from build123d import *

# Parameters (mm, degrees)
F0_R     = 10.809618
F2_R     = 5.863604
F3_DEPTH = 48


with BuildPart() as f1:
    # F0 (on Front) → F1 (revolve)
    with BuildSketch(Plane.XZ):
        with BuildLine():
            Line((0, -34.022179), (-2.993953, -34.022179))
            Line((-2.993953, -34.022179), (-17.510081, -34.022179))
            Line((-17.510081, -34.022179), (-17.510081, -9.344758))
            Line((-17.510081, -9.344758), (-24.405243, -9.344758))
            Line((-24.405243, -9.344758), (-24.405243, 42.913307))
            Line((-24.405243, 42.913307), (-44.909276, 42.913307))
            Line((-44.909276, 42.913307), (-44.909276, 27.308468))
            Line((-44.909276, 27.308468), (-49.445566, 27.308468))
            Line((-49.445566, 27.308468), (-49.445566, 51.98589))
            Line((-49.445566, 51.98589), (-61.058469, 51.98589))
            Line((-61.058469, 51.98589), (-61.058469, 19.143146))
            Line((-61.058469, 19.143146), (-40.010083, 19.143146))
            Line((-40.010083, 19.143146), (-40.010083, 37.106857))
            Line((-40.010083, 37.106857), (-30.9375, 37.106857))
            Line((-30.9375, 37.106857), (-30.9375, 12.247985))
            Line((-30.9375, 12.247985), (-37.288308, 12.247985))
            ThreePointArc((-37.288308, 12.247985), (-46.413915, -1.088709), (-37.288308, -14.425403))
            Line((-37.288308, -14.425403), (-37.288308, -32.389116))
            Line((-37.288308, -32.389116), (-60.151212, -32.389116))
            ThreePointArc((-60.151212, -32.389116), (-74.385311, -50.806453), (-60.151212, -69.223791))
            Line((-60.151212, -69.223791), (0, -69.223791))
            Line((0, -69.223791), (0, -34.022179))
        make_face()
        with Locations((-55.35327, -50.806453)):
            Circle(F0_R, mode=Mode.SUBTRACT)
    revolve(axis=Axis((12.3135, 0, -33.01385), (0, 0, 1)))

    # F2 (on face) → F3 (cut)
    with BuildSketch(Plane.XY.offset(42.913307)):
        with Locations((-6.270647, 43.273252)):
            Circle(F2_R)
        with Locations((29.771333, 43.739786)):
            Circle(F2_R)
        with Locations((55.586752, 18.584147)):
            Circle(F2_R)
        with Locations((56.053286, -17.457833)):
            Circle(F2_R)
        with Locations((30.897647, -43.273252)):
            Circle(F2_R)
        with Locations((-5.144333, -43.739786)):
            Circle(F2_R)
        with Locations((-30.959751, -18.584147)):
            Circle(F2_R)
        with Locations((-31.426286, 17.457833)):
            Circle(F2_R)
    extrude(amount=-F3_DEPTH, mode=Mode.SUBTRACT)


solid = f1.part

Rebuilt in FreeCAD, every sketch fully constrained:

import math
import FreeCAD as App
import Part
import Sketcher
from FreeCAD import Vector
Q = App.Units.Quantity

doc = App.newDocument("Part")
body = doc.addObject("PartDesign::Body", "Body")

# Sketch on XZ plane
sketch1 = body.newObject("Sketcher::SketchObject", "Sketch")
sketch1.AttachmentSupport = (doc.getObject("XZ_Plane"), [""])
sketch1.MapMode = "FlatFace"
sketch1.addGeometry(Part.LineSegment(Vector(0, -34, 0), Vector(-17.5, -34, 0)), False)
sketch1.addGeometry(Part.LineSegment(Vector(-17.5, -34, 0), Vector(-17.5, -9.3, 0)), False)
sketch1.addGeometry(Part.LineSegment(Vector(-17.5, -9.3, 0), Vector(-24.4, -9.3, 0)), False)
sketch1.addGeometry(Part.LineSegment(Vector(-24.4, -9.3, 0), Vector(-24.4, 42.9, 0)), False)
sketch1.addGeometry(Part.LineSegment(Vector(-24.4, 42.9, 0), Vector(-44.9, 42.9, 0)), False)
sketch1.addGeometry(Part.LineSegment(Vector(-44.9, 42.9, 0), Vector(-44.9, 27.3, 0)), False)
sketch1.addGeometry(Part.LineSegment(Vector(-44.9, 27.3, 0), Vector(-49.4, 27.3, 0)), False)
sketch1.addGeometry(Part.LineSegment(Vector(-49.4, 27.3, 0), Vector(-49.4, 52, 0)), False)
sketch1.addGeometry(Part.LineSegment(Vector(-49.4, 52, 0), Vector(-61.1, 52, 0)), False)
sketch1.addGeometry(Part.LineSegment(Vector(-61.1, 52, 0), Vector(-61.1, 19.1, 0)), False)
sketch1.addGeometry(Part.LineSegment(Vector(-61.1, 19.1, 0), Vector(-40, 19.1, 0)), False)
sketch1.addGeometry(Part.LineSegment(Vector(-40, 19.1, 0), Vector(-40, 37.1, 0)), False)
sketch1.addGeometry(Part.LineSegment(Vector(-40, 37.1, 0), Vector(-30.9, 37.1, 0)), False)
sketch1.addGeometry(Part.LineSegment(Vector(-30.9, 37.1, 0), Vector(-30.9, 12.2, 0)), False)
sketch1.addGeometry(Part.LineSegment(Vector(-30.9, 12.2, 0), Vector(-37.3, 12.2, 0)), False)
sketch1.addGeometry(Part.ArcOfCircle(Part.Circle(Vector(-32.1, -1.1, 0), Vector(0, 0, 1), 14.3), math.radians(111), math.radians(249)), False)
sketch1.addGeometry(Part.LineSegment(Vector(-37.3, -14.4, 0), Vector(-37.3, -32.4, 0)), False)
sketch1.addGeometry(Part.LineSegment(Vector(-37.3, -32.4, 0), Vector(-60.2, -32.4, 0)), False)
sketch1.addGeometry(Part.ArcOfCircle(Part.Circle(Vector(-55.4, -50.8, 0), Vector(0, 0, 1), 19), math.radians(105), math.radians(255)), False)
sketch1.addGeometry(Part.LineSegment(Vector(-60.2, -69.2, 0), Vector(0, -69.2, 0)), False)
sketch1.addGeometry(Part.LineSegment(Vector(0, -69.2, 0), Vector(0, -34, 0)), False)
sketch1.addGeometry(Part.Circle(Vector(-55.4, -50.8, 0), Vector(0, 0, 1), 10.8), False)
sketch1.addGeometry(Part.LineSegment(Vector(12.3, -69.2, 0), Vector(12.3, 52, 0)), True)  # axis
sketch1.addConstraint(Sketcher.Constraint("Coincident", 0, 2, 1, 1))
sketch1.addConstraint(Sketcher.Constraint("Coincident", 1, 2, 2, 1))
sketch1.addConstraint(Sketcher.Constraint("Coincident", 2, 2, 3, 1))
sketch1.addConstraint(Sketcher.Constraint("Coincident", 3, 2, 4, 1))
sketch1.addConstraint(Sketcher.Constraint("Coincident", 4, 2, 5, 1))
sketch1.addConstraint(Sketcher.Constraint("Coincident", 5, 2, 6, 1))
sketch1.addConstraint(Sketcher.Constraint("Coincident", 6, 2, 7, 1))
sketch1.addConstraint(Sketcher.Constraint("Coincident", 7, 2, 8, 1))
sketch1.addConstraint(Sketcher.Constraint("Coincident", 8, 2, 9, 1))
sketch1.addConstraint(Sketcher.Constraint("Coincident", 9, 2, 10, 1))
sketch1.addConstraint(Sketcher.Constraint("Coincident", 10, 2, 11, 1))
sketch1.addConstraint(Sketcher.Constraint("Coincident", 11, 2, 12, 1))
sketch1.addConstraint(Sketcher.Constraint("Coincident", 12, 2, 13, 1))
sketch1.addConstraint(Sketcher.Constraint("Coincident", 13, 2, 14, 1))
sketch1.addConstraint(Sketcher.Constraint("Coincident", 14, 2, 15, 1))
sketch1.addConstraint(Sketcher.Constraint("Coincident", 15, 2, 16, 1))
sketch1.addConstraint(Sketcher.Constraint("Coincident", 16, 2, 17, 1))
sketch1.addConstraint(Sketcher.Constraint("Coincident", 17, 2, 18, 1))
sketch1.addConstraint(Sketcher.Constraint("Coincident", 18, 2, 19, 1))
sketch1.addConstraint(Sketcher.Constraint("Coincident", 19, 2, 20, 1))
sketch1.addConstraint(Sketcher.Constraint("Coincident", 20, 2, 0, 1))
sketch1.addConstraint(Sketcher.Constraint("Horizontal", 0))
sketch1.addConstraint(Sketcher.Constraint("Vertical", 1))
sketch1.addConstraint(Sketcher.Constraint("Horizontal", 2))
sketch1.addConstraint(Sketcher.Constraint("Vertical", 3))
sketch1.addConstraint(Sketcher.Constraint("Horizontal", 4))
sketch1.addConstraint(Sketcher.Constraint("Vertical", 5))
sketch1.addConstraint(Sketcher.Constraint("Horizontal", 6))
sketch1.addConstraint(Sketcher.Constraint("Vertical", 7))
sketch1.addConstraint(Sketcher.Constraint("Horizontal", 8))
sketch1.addConstraint(Sketcher.Constraint("Vertical", 9))
sketch1.addConstraint(Sketcher.Constraint("Horizontal", 10))
sketch1.addConstraint(Sketcher.Constraint("Vertical", 11))
sketch1.addConstraint(Sketcher.Constraint("Horizontal", 12))
sketch1.addConstraint(Sketcher.Constraint("Vertical", 13))
sketch1.addConstraint(Sketcher.Constraint("Horizontal", 14))
sketch1.addConstraint(Sketcher.Constraint("Vertical", 16))
sketch1.addConstraint(Sketcher.Constraint("Horizontal", 17))
sketch1.addConstraint(Sketcher.Constraint("Horizontal", 19))
sketch1.addConstraint(Sketcher.Constraint("Vertical", 20))
sketch1.addConstraint(Sketcher.Constraint("Vertical", 22))
sketch1.addConstraint(Sketcher.Constraint("Coincident", 21, 3, 18, 3))
sketch1.addConstraint(Sketcher.Constraint("PointOnObject", 19, 2, -2))
sketch1.addConstraint(Sketcher.Constraint("Horizontal", 19, 2, 22, 1))
sketch1.addConstraint(Sketcher.Constraint("Horizontal", 8, 2, 22, 2))
sketch1.addConstraint(Sketcher.Constraint("Vertical", 14, 2, 15, 2))
sketch1.addConstraint(Sketcher.Constraint("Vertical", 17, 2, 18, 2))
sketch1.addConstraint(Sketcher.Constraint("Equal", 1, 7))
sketch1.addConstraint(Sketcher.Constraint("Radius", 18, Q("19.03204 mm")))
sketch1.addConstraint(Sketcher.Constraint("Diameter", 21, Q("21.619236 mm")))
sketch1.addConstraint(Sketcher.Constraint("Radius", 15, Q("14.308315 mm")))
sketch1.addConstraint(Sketcher.Constraint("DistanceX", 12, 2, 22, 2, Q("43.251 mm")))
sketch1.addConstraint(Sketcher.Constraint("DistanceX", 0, 2, 0, 1, Q("17.510081 mm")))
sketch1.addConstraint(Sketcher.Constraint("DistanceX", 2, 2, 2, 1, Q("6.895162 mm")))
sketch1.addConstraint(Sketcher.Constraint("DistanceX", 6, 2, 6, 1, Q("4.53629 mm")))
sketch1.addConstraint(Sketcher.Constraint("DistanceX", 14, 2, 14, 1, Q("6.350808 mm")))
sketch1.addConstraint(Sketcher.Constraint("DistanceY", 1, 1, 1, 2, Q("24.677421 mm")))
sketch1.addConstraint(Sketcher.Constraint("DistanceY", 5, 2, 5, 1, Q("15.604839 mm")))
sketch1.addConstraint(Sketcher.Constraint("DistanceY", 11, 1, 11, 2, Q("17.963711 mm")))
sketch1.addConstraint(Sketcher.Constraint("DistanceY", 13, 2, 13, 1, Q("24.858872 mm")))
sketch1.addConstraint(Sketcher.Constraint("DistanceY", 22, 1, 22, 2, Q("121.209681 mm")))
sketch1.addConstraint(Sketcher.Constraint("DistanceX", 15, 3, -1, 1, Q("32.1056 mm")))
sketch1.addConstraint(Sketcher.Constraint("DistanceX", 12, 2, -1, 1, Q("30.9375 mm")))
sketch1.addConstraint(Sketcher.Constraint("DistanceY", 15, 3, 7, 2, Q("53.074599 mm")))
sketch1.addConstraint(Sketcher.Constraint("DistanceX", 4, 2, 4, 1, Q("20.504033 mm")))
sketch1.addConstraint(Sketcher.Constraint("DistanceX", 8, 2, 8, 1, Q("11.612903 mm")))
sketch1.addConstraint(Sketcher.Constraint("DistanceX", 10, 1, 10, 2, Q("21.048386 mm")))
sketch1.addConstraint(Sketcher.Constraint("DistanceX", 17, 2, 17, 1, Q("22.862904 mm")))
sketch1.addConstraint(Sketcher.Constraint("DistanceY", 3, 1, 3, 2, Q("52.258065 mm")))
sketch1.addConstraint(Sketcher.Constraint("DistanceY", 16, 2, 16, 1, Q("17.963713 mm")))
sketch1.addConstraint(Sketcher.Constraint("DistanceY", 15, 3, -1, 1, Q("1.088709 mm")))
revolution = body.newObject("PartDesign::Revolution", "Revolution")
revolution.Profile = sketch1
revolution.ReferenceAxis = (sketch1, ["Axis0"])
revolution.Angle = 360

# Sketch on XY plane
sketch2 = body.newObject("Sketcher::SketchObject", "Sketch001")
sketch2.AttachmentSupport = (doc.getObject("XY_Plane"), [""])
sketch2.MapMode = "FlatFace"
sketch2.AttachmentOffset = App.Placement(Vector(0, 0, 42.913307), App.Rotation())
sketch2.addGeometry(Part.Circle(Vector(-6, 43, 0), Vector(0, 0, 1), 6), False)
sketch2.addGeometry(Part.Circle(Vector(30, 44, 0), Vector(0, 0, 1), 6), False)
sketch2.addGeometry(Part.Circle(Vector(56, 19, 0), Vector(0, 0, 1), 6), False)
sketch2.addGeometry(Part.Circle(Vector(56, -17, 0), Vector(0, 0, 1), 6), False)
sketch2.addGeometry(Part.Circle(Vector(31, -43, 0), Vector(0, 0, 1), 6), False)
sketch2.addGeometry(Part.Circle(Vector(-5, -44, 0), Vector(0, 0, 1), 6), False)
sketch2.addGeometry(Part.Circle(Vector(-31, -19, 0), Vector(0, 0, 1), 6), False)
sketch2.addGeometry(Part.Circle(Vector(-31, 17, 0), Vector(0, 0, 1), 6), False)
sketch2.addConstraint(Sketcher.Constraint("Equal", 0, 1))
sketch2.addConstraint(Sketcher.Constraint("Equal", 1, 2))
sketch2.addConstraint(Sketcher.Constraint("Equal", 2, 3))
sketch2.addConstraint(Sketcher.Constraint("Equal", 3, 4))
sketch2.addConstraint(Sketcher.Constraint("Equal", 4, 5))
sketch2.addConstraint(Sketcher.Constraint("Equal", 5, 6))
sketch2.addConstraint(Sketcher.Constraint("Equal", 6, 7))
sketch2.addConstraint(Sketcher.Constraint("Diameter", 0, Q("11.727208 mm")))
sketch2.addConstraint(Sketcher.Constraint("DistanceX", 0, 3, 2, 3, Q("61.857399 mm")))
sketch2.addConstraint(Sketcher.Constraint("DistanceY", 4, 3, 2, 3, Q("61.857399 mm")))
sketch2.addConstraint(Sketcher.Constraint("DistanceX", 6, 3, 4, 3, Q("61.857398 mm")))
sketch2.addConstraint(Sketcher.Constraint("DistanceY", 6, 3, 0, 3, Q("61.857399 mm")))
sketch2.addConstraint(Sketcher.Constraint("DistanceX", -1, 1, 2, 3, Q("55.586752 mm")))
sketch2.addConstraint(Sketcher.Constraint("DistanceX", 6, 3, -1, 1, Q("30.959751 mm")))
sketch2.addConstraint(Sketcher.Constraint("DistanceX", 0, 3, 1, 3, Q("36.04198 mm")))
sketch2.addConstraint(Sketcher.Constraint("DistanceY", 2, 3, 1, 3, Q("25.155639 mm")))
sketch2.addConstraint(Sketcher.Constraint("DistanceY", 3, 3, 2, 3, Q("36.04198 mm")))
sketch2.addConstraint(Sketcher.Constraint("DistanceX", 4, 3, 3, 3, Q("25.155639 mm")))
sketch2.addConstraint(Sketcher.Constraint("DistanceX", 5, 3, 4, 3, Q("36.04198 mm")))
sketch2.addConstraint(Sketcher.Constraint("DistanceY", 5, 3, 6, 3, Q("25.155639 mm")))
sketch2.addConstraint(Sketcher.Constraint("DistanceY", 6, 3, 7, 3, Q("36.04198 mm")))
sketch2.addConstraint(Sketcher.Constraint("DistanceX", 7, 3, 0, 3, Q("25.155639 mm")))
sketch2.addConstraint(Sketcher.Constraint("DistanceY", -1, 1, 0, 3, Q("43.273252 mm")))
sketch2.addConstraint(Sketcher.Constraint("DistanceY", -1, 1, 1, 3, Q("43.739786 mm")))
pocket1 = body.newObject("PartDesign::Pocket", "Pocket")
pocket1.Profile = sketch2
pocket1.Length = 48

doc.recompute()
